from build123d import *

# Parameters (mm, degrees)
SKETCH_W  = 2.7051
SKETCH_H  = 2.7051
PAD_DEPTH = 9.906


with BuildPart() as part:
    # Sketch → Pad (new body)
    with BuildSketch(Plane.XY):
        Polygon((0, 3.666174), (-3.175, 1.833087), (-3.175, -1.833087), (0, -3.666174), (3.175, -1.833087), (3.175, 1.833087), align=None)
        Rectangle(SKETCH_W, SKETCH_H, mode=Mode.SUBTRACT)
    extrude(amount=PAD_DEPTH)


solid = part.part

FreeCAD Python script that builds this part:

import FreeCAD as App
import Part
import Sketcher
Q = App.Units.Quantity

doc = App.newDocument("Part")
body = doc.addObject("PartDesign::Body", "Body")

# Sketch on XY plane
sketch1 = body.newObject("Sketcher::SketchObject", "Sketch")
sketch1.AttachmentSupport = (doc.getObject("XY_Plane"), [""])
sketch1.MapMode = "FlatFace"
sketch1.addGeometry([
    Part.LineSegment(App.Vector(0, 3.666174, 0), App.Vector(-3.175, 1.833087, 0)),  # 0
    Part.LineSegment(App.Vector(-3.175, 1.833087, 0), App.Vector(-3.175, -1.833087, 0)),  # 1
    Part.LineSegment(App.Vector(-3.175, -1.833087, 0), App.Vector(0, -3.666174, 0)),  # 2
    Part.LineSegment(App.Vector(0, -3.666174, 0), App.Vector(3.175, -1.833087, 0)),  # 3
    Part.LineSegment(App.Vector(3.175, -1.833087, 0), App.Vector(3.175, 1.833087, 0)),  # 4
    Part.LineSegment(App.Vector(3.175, 1.833087, 0), App.Vector(0, 3.666174, 0)),  # 5
    Part.LineSegment(App.Vector(1.35255, -1.35255, 0), App.Vector(-1.35255, -1.35255, 0)),  # 6
    Part.LineSegment(App.Vector(-1.35255, -1.35255, 0), App.Vector(-1.35255, 1.35255, 0)),  # 7
    Part.LineSegment(App.Vector(-1.35255, 1.35255, 0), App.Vector(1.35255, 1.35255, 0)),  # 8
    Part.LineSegment(App.Vector(1.35255, 1.35255, 0), App.Vector(1.35255, -1.35255, 0)),  # 9
], False)
sketch1.addConstraint([
    Sketcher.Constraint("Coincident", 0, 2, 1, 1),
    Sketcher.Constraint("Coincident", 1, 2, 2, 1),
    Sketcher.Constraint("Coincident", 2, 2, 3, 1),
    Sketcher.Constraint("Coincident", 3, 2, 4, 1),
    Sketcher.Constraint("Coincident", 4, 2, 5, 1),
    Sketcher.Constraint("Coincident", 5, 2, 0, 1),
    Sketcher.Constraint("Coincident", 6, 2, 7, 1),
    Sketcher.Constraint("Coincident", 7, 2, 8, 1),
    Sketcher.Constraint("Coincident", 8, 2, 9, 1),
    Sketcher.Constraint("Coincident", 9, 2, 6, 1),
    Sketcher.Constraint("Vertical", 1),
    Sketcher.Constraint("Vertical", 4),
    Sketcher.Constraint("Horizontal", 6),
    Sketcher.Constraint("Vertical", 7),
    Sketcher.Constraint("Horizontal", 8),
    Sketcher.Constraint("Vertical", 9),
    Sketcher.Constraint("Symmetric", 0, 2, 3, 2, -1, 1),
    Sketcher.Constraint("Symmetric", 2, 2, 5, 2, -1, 1),
    Sketcher.Constraint("Symmetric", 6, 2, 8, 2, -1, 1),
    Sketcher.Constraint("PointOnObject", 2, 2, -2),
    Sketcher.Constraint("Parallel", 2, 5),
    Sketcher.Constraint("Horizontal", 1, 2, 3, 2),
    Sketcher.Constraint("Equal", 8, 7),
    Sketcher.Constraint("Angle", 0, Q("-150.000001 deg")),
    Sketcher.Constraint("DistanceX", 1, 2, 3, 2, Q("0.25 in")),
    Sketcher.Constraint("DistanceX", 6, 2, 6, 1, Q("0.1065 in")),
    Sketcher.Constraint("DistanceY", 1, 2, 1, 1, Q("3.666174 mm")),
])
pad1 = body.newObject("PartDesign::Pad", "Pad")
pad1.Profile = sketch1
pad1.Length = Q("0.39 in")

doc.recompute()
